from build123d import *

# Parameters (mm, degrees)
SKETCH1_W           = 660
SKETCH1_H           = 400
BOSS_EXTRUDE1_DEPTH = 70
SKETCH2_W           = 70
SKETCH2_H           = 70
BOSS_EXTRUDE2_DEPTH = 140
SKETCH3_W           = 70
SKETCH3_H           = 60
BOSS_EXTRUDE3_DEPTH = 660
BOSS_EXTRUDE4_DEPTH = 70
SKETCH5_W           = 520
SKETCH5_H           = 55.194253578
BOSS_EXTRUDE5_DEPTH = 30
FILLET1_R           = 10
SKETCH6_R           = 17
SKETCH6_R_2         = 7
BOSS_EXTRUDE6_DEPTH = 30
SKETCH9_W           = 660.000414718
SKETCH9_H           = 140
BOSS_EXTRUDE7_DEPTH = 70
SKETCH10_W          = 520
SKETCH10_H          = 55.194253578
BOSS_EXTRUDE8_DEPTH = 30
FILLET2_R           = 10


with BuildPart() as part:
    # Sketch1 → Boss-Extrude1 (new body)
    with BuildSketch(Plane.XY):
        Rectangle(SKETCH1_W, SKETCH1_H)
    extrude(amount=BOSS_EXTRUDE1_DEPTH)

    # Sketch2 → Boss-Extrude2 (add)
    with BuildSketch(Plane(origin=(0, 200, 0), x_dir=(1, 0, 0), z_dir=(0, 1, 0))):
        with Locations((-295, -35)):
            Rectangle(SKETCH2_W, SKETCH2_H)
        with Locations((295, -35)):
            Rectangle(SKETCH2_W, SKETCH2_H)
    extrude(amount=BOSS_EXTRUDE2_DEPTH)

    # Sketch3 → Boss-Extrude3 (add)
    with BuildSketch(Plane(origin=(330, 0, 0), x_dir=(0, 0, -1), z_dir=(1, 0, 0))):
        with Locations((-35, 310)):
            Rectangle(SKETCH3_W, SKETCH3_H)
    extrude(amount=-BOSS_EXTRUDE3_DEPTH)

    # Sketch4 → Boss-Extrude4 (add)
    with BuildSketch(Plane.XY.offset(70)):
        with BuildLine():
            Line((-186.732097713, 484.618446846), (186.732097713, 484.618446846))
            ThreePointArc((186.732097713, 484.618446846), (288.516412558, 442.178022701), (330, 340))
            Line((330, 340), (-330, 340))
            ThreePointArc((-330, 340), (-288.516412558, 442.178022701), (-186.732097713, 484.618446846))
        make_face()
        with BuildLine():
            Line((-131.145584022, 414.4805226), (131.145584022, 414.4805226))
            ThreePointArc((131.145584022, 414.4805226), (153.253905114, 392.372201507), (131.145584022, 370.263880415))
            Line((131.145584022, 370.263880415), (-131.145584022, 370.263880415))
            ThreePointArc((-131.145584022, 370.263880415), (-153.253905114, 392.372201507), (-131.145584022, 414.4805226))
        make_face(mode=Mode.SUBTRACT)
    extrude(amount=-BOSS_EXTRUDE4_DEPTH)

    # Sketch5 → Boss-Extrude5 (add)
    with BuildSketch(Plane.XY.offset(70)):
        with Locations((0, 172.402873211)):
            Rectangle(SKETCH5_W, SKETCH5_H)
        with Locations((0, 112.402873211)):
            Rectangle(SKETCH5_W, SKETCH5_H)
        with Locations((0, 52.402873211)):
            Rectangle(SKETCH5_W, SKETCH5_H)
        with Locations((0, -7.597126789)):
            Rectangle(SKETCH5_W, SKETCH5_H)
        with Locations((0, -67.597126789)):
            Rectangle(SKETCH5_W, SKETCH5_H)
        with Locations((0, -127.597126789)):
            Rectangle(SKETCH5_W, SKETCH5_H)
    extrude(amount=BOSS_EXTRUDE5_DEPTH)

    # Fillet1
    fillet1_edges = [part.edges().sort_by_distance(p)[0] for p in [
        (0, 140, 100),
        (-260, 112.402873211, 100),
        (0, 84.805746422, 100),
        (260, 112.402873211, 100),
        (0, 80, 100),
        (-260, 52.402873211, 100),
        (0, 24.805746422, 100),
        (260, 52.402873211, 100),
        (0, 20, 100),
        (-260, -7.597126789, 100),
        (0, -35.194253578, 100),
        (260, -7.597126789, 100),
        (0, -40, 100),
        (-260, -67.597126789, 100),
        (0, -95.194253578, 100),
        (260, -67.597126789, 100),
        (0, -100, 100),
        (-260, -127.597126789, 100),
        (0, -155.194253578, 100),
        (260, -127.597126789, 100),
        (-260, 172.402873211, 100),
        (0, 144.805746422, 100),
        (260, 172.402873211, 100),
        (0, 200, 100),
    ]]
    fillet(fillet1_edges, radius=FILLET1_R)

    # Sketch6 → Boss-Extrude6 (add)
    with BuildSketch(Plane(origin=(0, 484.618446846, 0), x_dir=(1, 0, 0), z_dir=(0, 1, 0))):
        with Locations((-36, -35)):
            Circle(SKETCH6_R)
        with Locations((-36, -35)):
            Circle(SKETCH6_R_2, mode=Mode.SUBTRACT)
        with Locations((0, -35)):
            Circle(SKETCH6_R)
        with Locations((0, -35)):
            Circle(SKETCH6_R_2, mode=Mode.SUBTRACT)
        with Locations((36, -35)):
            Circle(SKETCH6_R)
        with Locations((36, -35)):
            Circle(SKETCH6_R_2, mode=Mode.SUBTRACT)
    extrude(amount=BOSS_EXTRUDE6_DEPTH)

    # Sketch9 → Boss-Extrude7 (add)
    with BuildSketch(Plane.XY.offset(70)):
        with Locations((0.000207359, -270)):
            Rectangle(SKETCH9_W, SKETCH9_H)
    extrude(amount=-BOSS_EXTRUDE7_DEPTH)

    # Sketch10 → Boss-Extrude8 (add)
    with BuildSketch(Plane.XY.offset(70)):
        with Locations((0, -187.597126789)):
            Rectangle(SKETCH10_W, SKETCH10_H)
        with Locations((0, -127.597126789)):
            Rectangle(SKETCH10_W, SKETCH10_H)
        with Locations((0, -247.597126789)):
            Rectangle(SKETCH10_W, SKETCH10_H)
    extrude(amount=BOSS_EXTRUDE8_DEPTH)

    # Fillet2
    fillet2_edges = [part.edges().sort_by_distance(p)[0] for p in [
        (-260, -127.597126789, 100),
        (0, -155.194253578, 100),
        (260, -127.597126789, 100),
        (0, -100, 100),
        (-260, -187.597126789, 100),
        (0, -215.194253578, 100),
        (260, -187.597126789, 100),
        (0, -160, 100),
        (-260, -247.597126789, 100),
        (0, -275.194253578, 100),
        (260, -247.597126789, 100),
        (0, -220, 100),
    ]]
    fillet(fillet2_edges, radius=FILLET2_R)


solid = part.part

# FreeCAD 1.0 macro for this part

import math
import FreeCAD as App
import Part
import Sketcher
from FreeCAD import Vector


def edges_at(feature, points):
    """Names of the edges that pass closest to the given points."""
    edges = feature.Shape.Edges
    near = lambda p: min(range(len(edges)), key=lambda i: edges[i].distToShape(Part.Vertex(*p))[0])
    return sorted({f"Edge{near(p) + 1}" for p in points})


def add_polygon(sketch, points):
    """Adds a closed chain of lines whose ends are joined by coincident constraints."""
    first, n = sketch.GeometryCount, len(points)
    for a, b in zip(points, points[1:] + points[:1]):
        sketch.addGeometry(Part.LineSegment(App.Vector(*a, 0), App.Vector(*b, 0)), False)
    for i in range(n):
        sketch.addConstraint(Sketcher.Constraint("Coincident", first + i, 2, first + (i + 1) % n, 1))

doc = App.newDocument("Part")
body = doc.addObject("PartDesign::Body", "Body")

# Sketch on XY plane
sketch1 = body.newObject("Sketcher::SketchObject", "Sketch")
sketch1.AttachmentSupport = (doc.getObject("XY_Plane"), [""])
sketch1.MapMode = "FlatFace"
add_polygon(sketch1, [(-330, 200), (-330, -200), (330, -200), (330, 200)])  # lines 0-3
sketch1.addConstraint([
    Sketcher.Constraint("Vertical", 0),
    Sketcher.Constraint("Horizontal", 1),
    Sketcher.Constraint("Vertical", 2),
    Sketcher.Constraint("Horizontal", 3),
    Sketcher.Constraint("Symmetric", 0, 2, 2, 2, -1, 1),
    Sketcher.Constraint("DistanceX", 1, 1, 1, 2, 660.0),
    Sketcher.Constraint("DistanceY", 0, 2, 0, 1, 400.0),
])
pad1 = body.newObject("PartDesign::Pad", "Pad")
pad1.Profile = sketch1
pad1.Length = 70

# Sketch on XZ plane
sketch2 = body.newObject("Sketcher::SketchObject", "Sketch001")
sketch2.AttachmentSupport = (doc.getObject("XZ_Plane"), [""])
sketch2.MapMode = "FlatFace"
sketch2.AttachmentOffset = App.Placement(Vector(0, 0, -200), App.Rotation())
add_polygon(sketch2, [(-330, 0), (-330, 70), (-260, 70), (-260, 0)])  # lines 0-3
add_polygon(sketch2, [(260, 0), (260, 70), (330, 70), (330, 0)])  # lines 4-7
sketch2.addConstraint([
    Sketcher.Constraint("Vertical", 0),
    Sketcher.Constraint("Horizontal", 1),
    Sketcher.Constraint("Vertical", 2),
    Sketcher.Constraint("Horizontal", 3),
    Sketcher.Constraint("Vertical", 4),
    Sketcher.Constraint("Horizontal", 5),
    Sketcher.Constraint("Vertical", 6),
    Sketcher.Constraint("Horizontal", 7),
    Sketcher.Constraint("Symmetric", 3, 2, 6, 2, -1, 1),
    Sketcher.Constraint("Symmetric", 1, 2, 4, 2, -2),
    Sketcher.Constraint("PointOnObject", 2, 2, -1),
    Sketcher.Constraint("Equal", 7, 0),
    Sketcher.Constraint("DistanceX", 1, 1, 1, 2, 70.0),
    Sketcher.Constraint("DistanceX", 0, 2, -1, 1, 330.0),
])
pad2 = body.newObject("PartDesign::Pad", "Pad001")
pad2.Profile = sketch2
pad2.Length = 140
pad2.Reversed = True

# Sketch on YZ plane
sketch3 = body.newObject("Sketcher::SketchObject", "Sketch002")
sketch3.AttachmentSupport = (doc.getObject("YZ_Plane"), [""])
sketch3.MapMode = "FlatFace"
sketch3.AttachmentOffset = App.Placement(Vector(0, 0, 330), App.Rotation())
add_polygon(sketch3, [(340, 70), (280, 70), (280, 0), (340, 0)])  # lines 0-3
sketch3.addConstraint([
    Sketcher.Constraint("Horizontal", 0),
    Sketcher.Constraint("Vertical", 1),
    Sketcher.Constraint("Horizontal", 2),
    Sketcher.Constraint("Vertical", 3),
    Sketcher.Constraint("PointOnObject", 1, 2, -1),
    Sketcher.Constraint("DistanceX", 0, 2, 0, 1, 60.0),
    Sketcher.Constraint("DistanceY", 1, 2, 1, 1, 70.0),
    Sketcher.Constraint("DistanceX", -1, 1, 0, 2, 280.0),
])
pad3 = body.newObject("PartDesign::Pad", "Pad002")
pad3.Profile = sketch3
pad3.Length = 660
pad3.Reversed = True

# Sketch on XY plane
sketch4 = body.newObject("Sketcher::SketchObject", "Sketch003")
sketch4.AttachmentSupport = (doc.getObject("XY_Plane"), [""])
sketch4.MapMode = "FlatFace"
sketch4.AttachmentOffset = App.Placement(Vector(0, 0, 70), App.Rotation())
sketch4.addGeometry([
    Part.LineSegment(Vector(186.732098, 484.618447, 0), Vector(-186.732098, 484.618447, 0)),  # 0
    Part.ArcOfCircle(Part.Circle(Vector(-186.732098, 341.344238, 0), Vector(0, 0, 1), 143.274208), math.radians(90), math.radians(180.537573)),  # 1
    Part.LineSegment(Vector(-330, 340, 0), Vector(330, 340, 0)),  # 2
    Part.ArcOfCircle(Part.Circle(Vector(186.732098, 341.344238, 0), Vector(0, 0, 1), 143.274208), math.radians(-0.537573), math.radians(90)),  # 3
    Part.LineSegment(Vector(-131.145584, 414.480523, 0), Vector(131.145584, 414.480523, 0)),  # 4
    Part.ArcOfCircle(Part.Circle(Vector(131.145584, 392.372202, 0), Vector(0, 0, 1), 22.108321), math.radians(-90), math.radians(90)),  # 5
    Part.LineSegment(Vector(131.145584, 370.26388, 0), Vector(-131.145584, 370.26388, 0)),  # 6
    Part.ArcOfCircle(Part.Circle(Vector(-131.145584, 392.372202, 0), Vector(0, 0, 1), 22.108321), math.radians(90), math.radians(270)),  # 7
], False)
sketch4.addConstraint([
    Sketcher.Constraint("Coincident", 0, 2, 1, 1),
    Sketcher.Constraint("Coincident", 1, 2, 2, 1),
    Sketcher.Constraint("Coincident", 2, 2, 3, 1),
    Sketcher.Constraint("Coincident", 3, 2, 0, 1),
    Sketcher.Constraint("Coincident", 4, 2, 5, 2),
    Sketcher.Constraint("Coincident", 5, 1, 6, 1),
    Sketcher.Constraint("Coincident", 6, 2, 7, 2),
    Sketcher.Constraint("Coincident", 7, 1, 4, 1),
    Sketcher.Constraint("Horizontal", 0),
    Sketcher.Constraint("Horizontal", 2),
    Sketcher.Constraint("Horizontal", 4),
    Sketcher.Constraint("Horizontal", 6),
    Sketcher.Constraint("DistanceX", 2, 1, 2, 2, 660.0),
    Sketcher.Constraint("DistanceX", 1, 2, -1, 1, 330.0),
    Sketcher.Constraint("DistanceY", -1, 1, 1, 2, 340.0),
    Sketcher.Constraint("Radius", 1, 143.274208),
    Sketcher.Constraint("Radius", 3, 143.274208),
    Sketcher.Constraint("Radius", 5, 22.108321),
    Sketcher.Constraint("DistanceX", 4, 1, 4, 2, 262.291168),
    Sketcher.Constraint("DistanceX", 6, 2, 6, 1, 262.291168),
    Sketcher.Constraint("DistanceY", -1, 1, 5, 3, 392.372202),
    Sketcher.Constraint("DistanceX", 0, 2, 0, 1, 373.464195),
    Sketcher.Constraint("DistanceY", -1, 1, 1, 3, 341.344238),
    Sketcher.Constraint("DistanceX", 1, 3, 5, 3, 317.877682),
    Sketcher.Constraint("DistanceX", 7, 3, 5, 3, 262.291168),
    Sketcher.Constraint("DistanceX", 0, 2, 5, 3, 317.877682),
    Sketcher.Constraint("DistanceX", 7, 3, 4, 2, 262.291168),
    Sketcher.Constraint("DistanceX", -1, 1, 5, 1, 131.145584),
])
pad4 = body.newObject("PartDesign::Pad", "Pad003")
pad4.Profile = sketch4
pad4.Length = 70
pad4.Reversed = True

# Sketch on XY plane
sketch5 = body.newObject("Sketcher::SketchObject", "Sketch004")
sketch5.AttachmentSupport = (doc.getObject("XY_Plane"), [""])
sketch5.MapMode = "FlatFace"
sketch5.AttachmentOffset = App.Placement(Vector(0, 0, 70), App.Rotation())
add_polygon(sketch5, [(-260, 200), (-260, 145), (260, 145), (260, 200)])  # lines 0-3
add_polygon(sketch5, [(-260, 140), (-260, 85), (260, 85), (260, 140)])  # lines 4-7
add_polygon(sketch5, [(-260, 80), (-260, 25), (260, 25), (260, 80)])  # lines 8-11
add_polygon(sketch5, [(-260, 20), (-260, -35), (260, -35), (260, 20)])  # lines 12-15
add_polygon(sketch5, [(-260, -40), (-260, -95), (260, -95), (260, -40)])  # lines 16-19
add_polygon(sketch5, [(-260, -100), (-260, -155), (260, -155), (260, -100)])  # lines 20-23
sketch5.addConstraint([
    Sketcher.Constraint("Vertical", 0),
    Sketcher.Constraint("Horizontal", 1),
    Sketcher.Constraint("Vertical", 2),
    Sketcher.Constraint("Horizontal", 3),
    Sketcher.Constraint("Vertical", 4),
    Sketcher.Constraint("Horizontal", 5),
    Sketcher.Constraint("Vertical", 6),
    Sketcher.Constraint("Horizontal", 7),
    Sketcher.Constraint("Vertical", 8),
    Sketcher.Constraint("Horizontal", 9),
    Sketcher.Constraint("Vertical", 10),
    Sketcher.Constraint("Horizontal", 11),
    Sketcher.Constraint("Vertical", 12),
    Sketcher.Constraint("Horizontal", 13),
    Sketcher.Constraint("Vertical", 14),
    Sketcher.Constraint("Horizontal", 15),
    Sketcher.Constraint("Vertical", 16),
    Sketcher.Constraint("Horizontal", 17),
    Sketcher.Constraint("Vertical", 18),
    Sketcher.Constraint("Horizontal", 19),
    Sketcher.Constraint("Vertical", 20),
    Sketcher.Constraint("Horizontal", 21),
    Sketcher.Constraint("Vertical", 22),
    Sketcher.Constraint("Horizontal", 23),
    Sketcher.Constraint("Vertical", 3, 2, 4, 2),
    Sketcher.Constraint("Vertical", 2, 2, 5, 2),
    Sketcher.Constraint("Vertical", 7, 2, 8, 2),
    Sketcher.Constraint("Vertical", 6, 2, 9, 2),
    Sketcher.Constraint("Vertical", 11, 2, 12, 2),
    Sketcher.Constraint("Vertical", 10, 2, 13, 2),
    Sketcher.Constraint("Vertical", 15, 2, 16, 2),
    Sketcher.Constraint("Vertical", 14, 2, 17, 2),
    Sketcher.Constraint("Vertical", 19, 2, 20, 2),
    Sketcher.Constraint("Vertical", 18, 2, 21, 2),
    Sketcher.Constraint("Equal", 2, 4),
    Sketcher.Constraint("Equal", 6, 8),
    Sketcher.Constraint("Equal", 10, 12),
    Sketcher.Constraint("Equal", 14, 16),
    Sketcher.Constraint("Equal", 18, 20),
    Sketcher.Constraint("DistanceX", 1, 1, 1, 2, 520.0),
    Sketcher.Constraint("DistanceX", 0, 2, -1, 1, 260.0),
    Sketcher.Constraint("DistanceY", -1, 1, 2, 2, 200.0),
    Sketcher.Constraint("DistanceY", -1, 1, 6, 2, 140.0),
    Sketcher.Constraint("DistanceY", -1, 1, 10, 2, 80.0),
    Sketcher.Constraint("DistanceY", -1, 1, 14, 2, 20.0),
    Sketcher.Constraint("DistanceY", 18, 2, -1, 1, 40.0),
    Sketcher.Constraint("DistanceY", 22, 2, -1, 1, 100.0),
    Sketcher.Constraint("DistanceY", 0, 2, 0, 1, 55.194254),
])
pad5 = body.newObject("PartDesign::Pad", "Pad004")
pad5.Profile = sketch5
pad5.Length = 30
doc.recompute()

fillet = body.newObject("PartDesign::Fillet", "Fillet")
fillet.Base = (pad5, edges_at(pad5, [
    (0, 140, 100),
    (-260, 112.403, 100),
    (0, 84.806, 100),
    (260, 112.403, 100),
    (0, 80, 100),
    (-260, 52.403, 100),
    (0, 24.806, 100),
    (260, 52.403, 100),
    (0, 20, 100),
    (-260, -7.597, 100),
    (0, -35.194, 100),
    (260, -7.597, 100),
    (0, -40, 100),
    (-260, -67.597, 100),
    (0, -95.194, 100),
    (260, -67.597, 100),
    (0, -100, 100),
    (-260, -127.597, 100),
    (0, -155.194, 100),
    (260, -127.597, 100),
    (-260, 172.403, 100),
    (0, 144.806, 100),
    (260, 172.403, 100),
    (0, 200, 100),
]))
fillet.Radius = 10

# Sketch on XZ plane
sketch6 = body.newObject("Sketcher::SketchObject", "Sketch005")
sketch6.AttachmentSupport = (doc.getObject("XZ_Plane"), [""])
sketch6.MapMode = "FlatFace"
sketch6.AttachmentOffset = App.Placement(Vector(0, 0, -484.618447), App.Rotation())
sketch6.addGeometry([
    Part.Circle(Vector(-36, 35, 0), Vector(0, 0, 1), 17),  # 0
    Part.Circle(Vector(-36, 35, 0), Vector(0, 0, 1), 7),  # 1
    Part.Circle(Vector(0, 35, 0), Vector(0, 0, 1), 17),  # 2
    Part.Circle(Vector(0, 35, 0), Vector(0, 0, 1), 7),  # 3
    Part.Circle(Vector(36, 35, 0), Vector(0, 0, 1), 17),  # 4
    Part.Circle(Vector(36, 35, 0), Vector(0, 0, 1), 7),  # 5
], False)
sketch6.addConstraint([
    Sketcher.Constraint("Coincident", 1, 3, 0, 3),
    Sketcher.Constraint("Coincident", 3, 3, 2, 3),
    Sketcher.Constraint("Coincident", 5, 3, 4, 3),
    Sketcher.Constraint("Equal", 0, 2),
    Sketcher.Constraint("Equal", 1, 3),
    Sketcher.Constraint("Equal", 2, 4),
    Sketcher.Constraint("Equal", 3, 5),
    Sketcher.Constraint("Symmetric", 0, 3, 4, 3, -2),
    Sketcher.Constraint("PointOnObject", 2, 3, -2),
    Sketcher.Constraint("Horizontal", 1, 3, 2, 3),
    Sketcher.Constraint("Diameter", 0, 34.0),
    Sketcher.Constraint("Diameter", 1, 14.0),
    Sketcher.Constraint("DistanceX", 0, 3, -1, 1, 36.0),
    Sketcher.Constraint("DistanceY", -1, 1, 0, 3, 35.0),
])
pad6 = body.newObject("PartDesign::Pad", "Pad005")
pad6.Profile = sketch6
pad6.Length = 30
pad6.Reversed = True

# Sketch on XY plane
sketch7 = body.newObject("Sketcher::SketchObject", "Sketch006")
sketch7.AttachmentSupport = (doc.getObject("XY_Plane"), [""])
sketch7.MapMode = "FlatFace"
sketch7.AttachmentOffset = App.Placement(Vector(0, 0, 70), App.Rotation())
add_polygon(sketch7, [(-330, -200), (-330, -340), (330.000415, -340), (330.000415, -200)])  # lines 0-3
sketch7.addConstraint([
    Sketcher.Constraint("Vertical", 0),
    Sketcher.Constraint("Horizontal", 1),
    Sketcher.Constraint("Vertical", 2),
    Sketcher.Constraint("Horizontal", 3),
    Sketcher.Constraint("DistanceY", 0, 2, 0, 1, 140.0),
    Sketcher.Constraint("DistanceX", 0, 2, -1, 1, 330.0),
    Sketcher.Constraint("DistanceY", 0, 2, -1, 1, 340.0),
    Sketcher.Constraint("DistanceX", 1, 1, 1, 2, 660.000415),
])
pad7 = body.newObject("PartDesign::Pad", "Pad006")
pad7.Profile = sketch7
pad7.Length = 70
pad7.Reversed = True

# Sketch on XY plane
sketch8 = body.newObject("Sketcher::SketchObject", "Sketch007")
sketch8.AttachmentSupport = (doc.getObject("XY_Plane"), [""])
sketch8.MapMode = "FlatFace"
sketch8.AttachmentOffset = App.Placement(Vector(0, 0, 70), App.Rotation())
add_polygon(sketch8, [(-260, -160), (-260, -215), (260, -215), (260, -160)])  # lines 0-3
add_polygon(sketch8, [(-260, -100), (-260, -155), (260, -155), (260, -100)])  # lines 4-7
add_polygon(sketch8, [(-260, -220), (-260, -275), (260, -275), (260, -220)])  # lines 8-11
sketch8.addConstraint([
    Sketcher.Constraint("Vertical", 0),
    Sketcher.Constraint("Horizontal", 1),
    Sketcher.Constraint("Vertical", 2),
    Sketcher.Constraint("Horizontal", 3),
    Sketcher.Constraint("Vertical", 4),
    Sketcher.Constraint("Horizontal", 5),
    Sketcher.Constraint("Vertical", 6),
    Sketcher.Constraint("Horizontal", 7),
    Sketcher.Constraint("Vertical", 8),
    Sketcher.Constraint("Horizontal", 9),
    Sketcher.Constraint("Vertical", 10),
    Sketcher.Constraint("Horizontal", 11),
    Sketcher.Constraint("Vertical", 3, 2, 4, 2),
    Sketcher.Constraint("Vertical", 2, 2, 5, 2),
    Sketcher.Constraint("Vertical", 7, 2, 8, 2),
    Sketcher.Constraint("Vertical", 6, 2, 9, 2),
    Sketcher.Constraint("Equal", 2, 4),
    Sketcher.Constraint("Equal", 6, 8),
    Sketcher.Constraint("DistanceX", 1, 1, 1, 2, 520.0),
    Sketcher.Constraint("DistanceX", 0, 2, -1, 1, 260.0),
    Sketcher.Constraint("DistanceY", 2, 2, -1, 1, 160.0),
    Sketcher.Constraint("DistanceY", 6, 2, -1, 1, 100.0),
    Sketcher.Constraint("DistanceY", 10, 2, -1, 1, 220.0),
    Sketcher.Constraint("DistanceY", 0, 2, 0, 1, 55.194254),
])
pad8 = body.newObject("PartDesign::Pad", "Pad007")
pad8.Profile = sketch8
pad8.Length = 30
doc.recompute()

fillet2 = body.newObject("PartDesign::Fillet", "Fillet001")
fillet2.Base = (pad8, edges_at(pad8, [
    (-260, -127.597, 100),
    (0, -155.194, 100),
    (260, -127.597, 100),
    (0, -100, 100),
    (-260, -187.597, 100),
    (0, -215.194, 100),
    (260, -187.597, 100),
    (0, -160, 100),
    (-260, -247.597, 100),
    (0, -275.194, 100),
    (260, -247.597, 100),
    (0, -220, 100),
]))
fillet2.Radius = 10

doc.recompute()
